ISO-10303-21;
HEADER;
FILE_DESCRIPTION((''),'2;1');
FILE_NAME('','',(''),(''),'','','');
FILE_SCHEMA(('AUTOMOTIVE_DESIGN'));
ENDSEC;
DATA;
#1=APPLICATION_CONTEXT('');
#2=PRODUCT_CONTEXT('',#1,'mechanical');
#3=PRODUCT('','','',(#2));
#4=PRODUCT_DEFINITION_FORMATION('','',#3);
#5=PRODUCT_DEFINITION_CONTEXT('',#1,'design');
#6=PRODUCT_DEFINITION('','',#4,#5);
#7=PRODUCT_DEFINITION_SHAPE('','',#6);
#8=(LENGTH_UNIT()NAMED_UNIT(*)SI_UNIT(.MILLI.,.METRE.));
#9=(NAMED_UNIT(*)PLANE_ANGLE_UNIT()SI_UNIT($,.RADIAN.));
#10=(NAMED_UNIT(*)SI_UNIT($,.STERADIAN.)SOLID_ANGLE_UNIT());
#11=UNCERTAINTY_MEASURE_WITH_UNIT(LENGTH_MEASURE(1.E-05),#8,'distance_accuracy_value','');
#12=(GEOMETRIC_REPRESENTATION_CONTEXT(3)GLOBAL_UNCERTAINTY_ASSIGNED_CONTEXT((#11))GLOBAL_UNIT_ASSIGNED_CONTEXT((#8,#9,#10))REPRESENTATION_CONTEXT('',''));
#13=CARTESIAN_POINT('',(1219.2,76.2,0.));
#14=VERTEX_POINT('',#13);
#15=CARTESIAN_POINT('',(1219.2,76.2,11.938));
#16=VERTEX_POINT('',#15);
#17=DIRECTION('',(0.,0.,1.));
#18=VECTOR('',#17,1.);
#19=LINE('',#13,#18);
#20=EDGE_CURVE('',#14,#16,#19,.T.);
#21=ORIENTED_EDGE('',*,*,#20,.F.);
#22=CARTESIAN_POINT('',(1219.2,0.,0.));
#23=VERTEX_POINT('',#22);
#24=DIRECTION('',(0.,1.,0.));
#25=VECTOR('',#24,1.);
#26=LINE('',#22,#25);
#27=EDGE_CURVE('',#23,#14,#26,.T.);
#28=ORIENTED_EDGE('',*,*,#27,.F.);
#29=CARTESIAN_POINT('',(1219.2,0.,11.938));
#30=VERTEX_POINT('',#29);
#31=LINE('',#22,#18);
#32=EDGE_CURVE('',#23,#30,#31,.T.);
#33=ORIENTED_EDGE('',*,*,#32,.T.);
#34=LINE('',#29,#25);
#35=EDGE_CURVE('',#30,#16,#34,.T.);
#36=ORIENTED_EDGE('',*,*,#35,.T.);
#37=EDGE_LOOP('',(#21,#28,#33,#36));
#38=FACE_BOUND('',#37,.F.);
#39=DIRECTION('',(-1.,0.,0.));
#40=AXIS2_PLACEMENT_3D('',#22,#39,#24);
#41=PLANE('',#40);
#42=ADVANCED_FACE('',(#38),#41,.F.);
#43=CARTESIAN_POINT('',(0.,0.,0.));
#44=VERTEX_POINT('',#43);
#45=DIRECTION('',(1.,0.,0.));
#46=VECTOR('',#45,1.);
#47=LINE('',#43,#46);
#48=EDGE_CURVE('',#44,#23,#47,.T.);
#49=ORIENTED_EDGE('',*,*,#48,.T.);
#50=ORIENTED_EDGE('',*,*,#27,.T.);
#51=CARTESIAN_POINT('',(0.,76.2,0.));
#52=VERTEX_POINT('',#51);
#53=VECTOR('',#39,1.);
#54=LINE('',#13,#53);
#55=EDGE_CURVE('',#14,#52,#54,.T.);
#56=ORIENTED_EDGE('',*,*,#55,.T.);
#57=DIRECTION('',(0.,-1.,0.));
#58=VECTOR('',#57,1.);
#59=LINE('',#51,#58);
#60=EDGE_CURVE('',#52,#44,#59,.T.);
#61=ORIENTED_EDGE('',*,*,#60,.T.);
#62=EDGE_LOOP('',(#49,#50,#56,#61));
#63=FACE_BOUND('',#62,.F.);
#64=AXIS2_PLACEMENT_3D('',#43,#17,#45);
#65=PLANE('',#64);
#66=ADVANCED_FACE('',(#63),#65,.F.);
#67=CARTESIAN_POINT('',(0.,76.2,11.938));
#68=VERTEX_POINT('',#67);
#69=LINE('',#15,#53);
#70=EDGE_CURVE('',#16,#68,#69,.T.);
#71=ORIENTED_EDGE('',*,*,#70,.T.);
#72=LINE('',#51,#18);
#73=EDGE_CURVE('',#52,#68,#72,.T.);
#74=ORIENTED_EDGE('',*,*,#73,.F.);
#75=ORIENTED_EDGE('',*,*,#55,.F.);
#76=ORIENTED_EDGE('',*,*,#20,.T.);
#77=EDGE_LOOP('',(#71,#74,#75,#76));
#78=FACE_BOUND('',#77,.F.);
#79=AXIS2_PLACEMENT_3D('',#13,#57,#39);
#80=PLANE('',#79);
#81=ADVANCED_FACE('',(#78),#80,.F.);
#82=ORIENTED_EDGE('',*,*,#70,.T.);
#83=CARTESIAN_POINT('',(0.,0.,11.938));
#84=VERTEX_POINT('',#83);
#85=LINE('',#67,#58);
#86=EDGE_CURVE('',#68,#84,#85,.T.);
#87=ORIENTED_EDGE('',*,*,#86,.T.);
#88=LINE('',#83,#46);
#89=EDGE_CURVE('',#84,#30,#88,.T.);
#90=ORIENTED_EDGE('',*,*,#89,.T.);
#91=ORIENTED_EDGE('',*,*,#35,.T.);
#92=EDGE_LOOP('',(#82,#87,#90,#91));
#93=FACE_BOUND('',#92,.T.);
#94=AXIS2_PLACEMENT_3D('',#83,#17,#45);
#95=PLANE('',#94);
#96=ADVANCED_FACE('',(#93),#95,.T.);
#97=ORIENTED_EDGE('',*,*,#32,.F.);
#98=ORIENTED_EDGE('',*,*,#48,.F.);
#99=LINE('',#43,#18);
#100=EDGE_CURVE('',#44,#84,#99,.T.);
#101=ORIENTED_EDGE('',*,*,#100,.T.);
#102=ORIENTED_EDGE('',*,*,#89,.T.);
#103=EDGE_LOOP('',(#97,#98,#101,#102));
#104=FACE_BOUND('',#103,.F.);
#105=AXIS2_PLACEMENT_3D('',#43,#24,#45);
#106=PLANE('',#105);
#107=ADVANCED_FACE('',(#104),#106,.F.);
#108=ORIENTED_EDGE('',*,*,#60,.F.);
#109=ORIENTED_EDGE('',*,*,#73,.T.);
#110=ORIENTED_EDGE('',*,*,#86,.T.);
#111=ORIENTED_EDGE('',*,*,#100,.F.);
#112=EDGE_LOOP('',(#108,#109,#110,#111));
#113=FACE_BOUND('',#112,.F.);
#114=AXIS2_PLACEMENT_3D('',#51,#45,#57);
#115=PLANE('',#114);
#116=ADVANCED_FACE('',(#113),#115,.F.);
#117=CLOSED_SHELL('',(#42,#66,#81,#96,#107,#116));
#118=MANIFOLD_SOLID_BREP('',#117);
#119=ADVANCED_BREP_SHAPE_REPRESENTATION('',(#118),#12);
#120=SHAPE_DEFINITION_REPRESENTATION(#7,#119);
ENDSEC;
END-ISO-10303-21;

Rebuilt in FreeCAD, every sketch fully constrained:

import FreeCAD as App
import Part
import Sketcher
from FreeCAD import Vector
Q = App.Units.Quantity


def add_polygon(sketch, points):
    """Adds a closed chain of lines whose ends are joined by coincident constraints."""
    first, n = sketch.GeometryCount, len(points)
    for a, b in zip(points, points[1:] + points[:1]):
        sketch.addGeometry(Part.LineSegment(App.Vector(*a, 0), App.Vector(*b, 0)), False)
    for i in range(n):
        sketch.addConstraint(Sketcher.Constraint("Coincident", first + i, 2, first + (i + 1) % n, 1))

doc = App.newDocument("Part")
body = doc.addObject("PartDesign::Body", "Body")

sketch1 = body.newObject("Sketcher::SketchObject", "Sketch")
sketch1.AttachmentSupport = (doc.getObject("XY_Plane"), [""])
sketch1.MapMode = "FlatFace"
add_polygon(sketch1, [(0, 76.2), (0, 0), (1219.2, 0), (1219.2, 76.2)])
sketch1.addConstraint(Sketcher.Constraint("Vertical", 0))
sketch1.addConstraint(Sketcher.Constraint("Horizontal", 1))
sketch1.addConstraint(Sketcher.Constraint("Vertical", 2))
sketch1.addConstraint(Sketcher.Constraint("Horizontal", 3))
sketch1.addConstraint(Sketcher.Constraint("Coincident", 0, 2, -1, 1))
sketch1.addConstraint(Sketcher.Constraint("DistanceX", 1, 1, 1, 2, Q("48 in")))
sketch1.addConstraint(Sketcher.Constraint("DistanceY", 0, 2, 0, 1, Q("3 in")))
pad1 = body.newObject("PartDesign::Pad", "Pad")
pad1.Profile = sketch1
pad1.Length = Q("0.47 in")

doc.recompute()
